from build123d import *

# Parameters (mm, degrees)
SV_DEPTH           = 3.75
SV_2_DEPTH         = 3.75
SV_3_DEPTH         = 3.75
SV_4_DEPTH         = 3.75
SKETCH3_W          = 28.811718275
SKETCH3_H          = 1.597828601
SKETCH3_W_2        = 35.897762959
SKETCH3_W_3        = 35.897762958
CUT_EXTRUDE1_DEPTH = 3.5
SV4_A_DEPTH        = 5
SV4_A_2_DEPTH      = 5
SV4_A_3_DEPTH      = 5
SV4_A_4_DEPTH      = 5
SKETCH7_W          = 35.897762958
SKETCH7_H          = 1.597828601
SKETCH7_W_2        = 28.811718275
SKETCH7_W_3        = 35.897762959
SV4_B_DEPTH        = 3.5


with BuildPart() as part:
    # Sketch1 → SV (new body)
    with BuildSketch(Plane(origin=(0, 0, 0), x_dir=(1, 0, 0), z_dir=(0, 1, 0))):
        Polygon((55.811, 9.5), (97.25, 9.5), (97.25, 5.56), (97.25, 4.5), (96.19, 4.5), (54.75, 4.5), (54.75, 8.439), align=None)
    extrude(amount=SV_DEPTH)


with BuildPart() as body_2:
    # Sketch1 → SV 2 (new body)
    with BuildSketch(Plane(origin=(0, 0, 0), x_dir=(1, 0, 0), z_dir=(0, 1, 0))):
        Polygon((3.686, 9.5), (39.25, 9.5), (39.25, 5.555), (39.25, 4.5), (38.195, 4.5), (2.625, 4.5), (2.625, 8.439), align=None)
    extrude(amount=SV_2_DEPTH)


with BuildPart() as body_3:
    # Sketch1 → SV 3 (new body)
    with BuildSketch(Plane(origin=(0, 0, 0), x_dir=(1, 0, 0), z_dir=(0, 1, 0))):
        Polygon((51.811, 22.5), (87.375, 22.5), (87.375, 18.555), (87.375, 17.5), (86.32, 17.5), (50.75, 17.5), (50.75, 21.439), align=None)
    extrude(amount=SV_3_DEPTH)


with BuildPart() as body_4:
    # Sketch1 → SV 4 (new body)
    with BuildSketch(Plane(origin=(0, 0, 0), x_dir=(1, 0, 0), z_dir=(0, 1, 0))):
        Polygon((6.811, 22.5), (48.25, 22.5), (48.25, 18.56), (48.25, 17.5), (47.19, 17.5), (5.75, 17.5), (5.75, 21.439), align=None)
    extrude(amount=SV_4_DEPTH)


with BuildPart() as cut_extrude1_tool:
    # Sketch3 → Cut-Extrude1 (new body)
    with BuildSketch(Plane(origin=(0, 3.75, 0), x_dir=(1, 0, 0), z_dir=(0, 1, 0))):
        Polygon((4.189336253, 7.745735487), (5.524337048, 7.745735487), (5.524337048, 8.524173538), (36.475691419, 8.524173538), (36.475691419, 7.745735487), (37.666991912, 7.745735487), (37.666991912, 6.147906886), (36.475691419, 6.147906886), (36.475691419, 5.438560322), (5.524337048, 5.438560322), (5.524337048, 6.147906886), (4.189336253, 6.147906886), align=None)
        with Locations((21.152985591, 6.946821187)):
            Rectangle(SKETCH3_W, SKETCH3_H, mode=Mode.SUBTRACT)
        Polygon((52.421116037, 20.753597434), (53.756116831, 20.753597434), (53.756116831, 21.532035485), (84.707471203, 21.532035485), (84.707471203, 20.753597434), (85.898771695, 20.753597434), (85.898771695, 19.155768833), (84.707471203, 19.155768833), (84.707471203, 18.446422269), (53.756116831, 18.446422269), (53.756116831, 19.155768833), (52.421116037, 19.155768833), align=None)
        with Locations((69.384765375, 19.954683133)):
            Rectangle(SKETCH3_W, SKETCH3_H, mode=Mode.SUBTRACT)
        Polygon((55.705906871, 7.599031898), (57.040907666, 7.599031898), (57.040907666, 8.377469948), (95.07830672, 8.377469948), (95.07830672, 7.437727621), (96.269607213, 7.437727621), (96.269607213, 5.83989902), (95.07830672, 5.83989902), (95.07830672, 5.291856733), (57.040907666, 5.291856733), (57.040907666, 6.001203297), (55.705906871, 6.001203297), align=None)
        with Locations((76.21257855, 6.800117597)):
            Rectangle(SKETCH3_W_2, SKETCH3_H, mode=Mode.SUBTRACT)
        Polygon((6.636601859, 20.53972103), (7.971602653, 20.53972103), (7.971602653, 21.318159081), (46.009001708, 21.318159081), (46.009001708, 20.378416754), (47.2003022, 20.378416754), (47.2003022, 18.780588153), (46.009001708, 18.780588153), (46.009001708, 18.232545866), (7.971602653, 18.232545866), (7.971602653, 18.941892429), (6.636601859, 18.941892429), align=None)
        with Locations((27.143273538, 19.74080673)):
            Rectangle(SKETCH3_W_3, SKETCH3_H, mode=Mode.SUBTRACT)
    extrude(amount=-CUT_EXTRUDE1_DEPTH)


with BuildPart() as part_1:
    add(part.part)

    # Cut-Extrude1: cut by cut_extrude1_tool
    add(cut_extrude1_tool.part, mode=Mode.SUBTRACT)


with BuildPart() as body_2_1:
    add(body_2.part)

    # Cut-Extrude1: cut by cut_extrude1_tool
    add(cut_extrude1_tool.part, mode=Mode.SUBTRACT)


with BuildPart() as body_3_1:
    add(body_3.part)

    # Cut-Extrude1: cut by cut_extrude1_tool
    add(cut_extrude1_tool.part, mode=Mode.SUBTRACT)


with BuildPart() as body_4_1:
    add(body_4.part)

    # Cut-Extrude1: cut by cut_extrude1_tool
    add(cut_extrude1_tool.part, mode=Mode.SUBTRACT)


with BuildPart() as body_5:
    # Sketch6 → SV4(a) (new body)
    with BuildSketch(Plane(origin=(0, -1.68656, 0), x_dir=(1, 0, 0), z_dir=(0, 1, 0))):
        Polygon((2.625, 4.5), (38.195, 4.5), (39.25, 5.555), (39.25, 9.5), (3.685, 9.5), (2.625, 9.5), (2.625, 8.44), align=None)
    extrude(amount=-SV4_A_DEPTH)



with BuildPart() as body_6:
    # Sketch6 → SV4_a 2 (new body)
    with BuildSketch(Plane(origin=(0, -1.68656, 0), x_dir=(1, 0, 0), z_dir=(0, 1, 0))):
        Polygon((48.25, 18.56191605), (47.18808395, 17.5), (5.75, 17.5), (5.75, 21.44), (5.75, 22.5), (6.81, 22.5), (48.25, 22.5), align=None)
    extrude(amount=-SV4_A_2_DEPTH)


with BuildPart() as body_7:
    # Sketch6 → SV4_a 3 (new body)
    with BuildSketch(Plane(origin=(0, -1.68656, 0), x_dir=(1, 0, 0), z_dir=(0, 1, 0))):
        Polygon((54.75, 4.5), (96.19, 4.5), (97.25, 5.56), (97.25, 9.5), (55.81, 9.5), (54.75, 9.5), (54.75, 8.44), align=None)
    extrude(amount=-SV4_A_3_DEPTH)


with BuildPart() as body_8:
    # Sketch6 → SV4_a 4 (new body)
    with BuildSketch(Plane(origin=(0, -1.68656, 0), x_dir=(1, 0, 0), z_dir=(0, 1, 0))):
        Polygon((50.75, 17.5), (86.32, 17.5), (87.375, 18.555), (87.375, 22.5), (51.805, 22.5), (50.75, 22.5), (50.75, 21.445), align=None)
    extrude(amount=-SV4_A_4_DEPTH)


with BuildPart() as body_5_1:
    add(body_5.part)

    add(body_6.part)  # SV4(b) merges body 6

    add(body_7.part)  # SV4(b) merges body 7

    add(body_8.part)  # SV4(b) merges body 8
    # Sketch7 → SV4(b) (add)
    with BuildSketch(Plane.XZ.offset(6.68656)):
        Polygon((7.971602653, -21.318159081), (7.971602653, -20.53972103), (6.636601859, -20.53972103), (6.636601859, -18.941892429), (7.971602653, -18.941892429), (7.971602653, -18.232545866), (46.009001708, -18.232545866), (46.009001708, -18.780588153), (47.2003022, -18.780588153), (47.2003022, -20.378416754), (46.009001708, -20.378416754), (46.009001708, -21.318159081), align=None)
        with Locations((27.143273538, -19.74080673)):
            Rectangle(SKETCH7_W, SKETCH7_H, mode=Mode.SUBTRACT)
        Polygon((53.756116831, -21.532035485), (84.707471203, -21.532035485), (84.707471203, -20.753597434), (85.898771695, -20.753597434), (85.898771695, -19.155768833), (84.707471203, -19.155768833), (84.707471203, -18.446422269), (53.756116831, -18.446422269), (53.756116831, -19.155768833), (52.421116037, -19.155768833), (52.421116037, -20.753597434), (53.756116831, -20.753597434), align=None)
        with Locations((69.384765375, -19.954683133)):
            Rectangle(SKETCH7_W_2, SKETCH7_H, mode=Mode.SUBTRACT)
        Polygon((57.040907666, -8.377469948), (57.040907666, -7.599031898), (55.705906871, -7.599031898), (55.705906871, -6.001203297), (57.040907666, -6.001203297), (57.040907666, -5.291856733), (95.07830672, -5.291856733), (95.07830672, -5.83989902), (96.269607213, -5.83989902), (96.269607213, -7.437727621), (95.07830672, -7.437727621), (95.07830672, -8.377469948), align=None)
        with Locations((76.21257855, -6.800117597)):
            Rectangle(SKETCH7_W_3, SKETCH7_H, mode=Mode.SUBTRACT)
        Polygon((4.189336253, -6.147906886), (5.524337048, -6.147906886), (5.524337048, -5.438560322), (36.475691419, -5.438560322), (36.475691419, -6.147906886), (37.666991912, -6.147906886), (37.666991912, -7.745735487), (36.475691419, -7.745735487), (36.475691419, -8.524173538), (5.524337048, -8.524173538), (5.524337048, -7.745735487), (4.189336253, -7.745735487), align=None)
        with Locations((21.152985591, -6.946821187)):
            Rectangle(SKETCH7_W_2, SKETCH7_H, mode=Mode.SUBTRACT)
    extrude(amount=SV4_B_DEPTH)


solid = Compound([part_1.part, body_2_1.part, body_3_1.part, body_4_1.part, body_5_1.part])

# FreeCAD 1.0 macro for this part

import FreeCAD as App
import Part
import Sketcher

V = App.Vector
Q = App.Units.Quantity

doc = App.newDocument("Part")
body = doc.addObject("PartDesign::Body", "Body")

# Sketch on XZ plane
sketch1 = body.newObject("Sketcher::SketchObject", "Sketch")
sketch1.AttachmentSupport = (doc.getObject("XZ_Plane"), [""])
sketch1.MapMode = "FlatFace"
sketch1.addGeometry([
    Part.LineSegment(V(97.2, -9.5, 0), V(55.8, -9.5, 0)),  # 0
    Part.LineSegment(V(55.8, -9.5, 0), V(54.8, -8.4, 0)),  # 1
    Part.LineSegment(V(54.8, -8.4, 0), V(54.8, -4.5, 0)),  # 2
    Part.LineSegment(V(54.8, -4.5, 0), V(97.2, -4.5, 0)),  # 3
    Part.LineSegment(V(97.2, -4.5, 0), V(97.2, -9.5, 0)),  # 4
], False)
sketch1.addConstraint([
    Sketcher.Constraint("Coincident", 0, 2, 1, 1),
    Sketcher.Constraint("Coincident", 1, 2, 2, 1),
    Sketcher.Constraint("Coincident", 2, 2, 3, 1),
    Sketcher.Constraint("Coincident", 3, 2, 4, 1),
    Sketcher.Constraint("Coincident", 4, 2, 0, 1),
    Sketcher.Constraint("Horizontal", 0),
    Sketcher.Constraint("Vertical", 2),
    Sketcher.Constraint("Horizontal", 3),
    Sketcher.Constraint("Vertical", 4),
    Sketcher.Constraint("DistanceY", 4, 2, 4, 1, Q("5 mm")),
    Sketcher.Constraint("Angle", 1, Q("135 deg")),
    Sketcher.Constraint("DistanceX", 3, 1, 3, 2, Q("42.5 mm")),
    Sketcher.Constraint("DistanceY", 0, 2, -1, 1, Q("9.5 mm")),
    Sketcher.Constraint("DistanceX", 0, 2, 0, 1, Q("41.439 mm")),
    Sketcher.Constraint("DistanceX", -1, 1, 1, 2, Q("54.75 mm")),
])
pad1 = body.newObject("PartDesign::Pad", "Pad")
pad1.Profile = sketch1
pad1.Length = 3.75
pad1.Reversed = True
body2 = doc.addObject("PartDesign::Body", "Body001")

# Sketch on XZ plane
sketch2 = body2.newObject("Sketcher::SketchObject", "Sketch001")
sketch2.AttachmentSupport = (doc.getObject("XZ_Plane001"), [""])
sketch2.MapMode = "FlatFace"
sketch2.addGeometry([
    Part.LineSegment(V(39.2, -9.5, 0), V(3.7, -9.5, 0)),  # 0
    Part.LineSegment(V(3.7, -9.5, 0), V(2.6, -8.4, 0)),  # 1
    Part.LineSegment(V(2.6, -8.4, 0), V(2.6, -4.5, 0)),  # 2
    Part.LineSegment(V(2.6, -4.5, 0), V(39.2, -4.5, 0)),  # 3
    Part.LineSegment(V(39.2, -4.5, 0), V(39.2, -9.5, 0)),  # 4
], False)
sketch2.addConstraint([
    Sketcher.Constraint("Coincident", 0, 2, 1, 1),
    Sketcher.Constraint("Coincident", 1, 2, 2, 1),
    Sketcher.Constraint("Coincident", 2, 2, 3, 1),
    Sketcher.Constraint("Coincident", 3, 2, 4, 1),
    Sketcher.Constraint("Coincident", 4, 2, 0, 1),
    Sketcher.Constraint("Horizontal", 0),
    Sketcher.Constraint("Vertical", 2),
    Sketcher.Constraint("Horizontal", 3),
    Sketcher.Constraint("Vertical", 4),
    Sketcher.Constraint("DistanceY", 4, 2, 4, 1, Q("5 mm")),
    Sketcher.Constraint("Angle", 1, Q("135 deg")),
    Sketcher.Constraint("DistanceY", 0, 2, -1, 1, Q("9.5 mm")),
    Sketcher.Constraint("DistanceX", 0, 2, 0, 1, Q("35.564 mm")),
    Sketcher.Constraint("DistanceX", 3, 1, 3, 2, Q("36.625 mm")),
    Sketcher.Constraint("DistanceX", -1, 1, 3, 2, Q("39.25 mm")),
])
pad2 = body2.newObject("PartDesign::Pad", "Pad001")
pad2.Profile = sketch2
pad2.Length = 3.75
pad2.Reversed = True
body3 = doc.addObject("PartDesign::Body", "Body002")

# Sketch on XZ plane
sketch3 = body3.newObject("Sketcher::SketchObject", "Sketch002")
sketch3.AttachmentSupport = (doc.getObject("XZ_Plane002"), [""])
sketch3.MapMode = "FlatFace"
sketch3.addGeometry([
    Part.LineSegment(V(87.4, -22.5, 0), V(51.8, -22.5, 0)),  # 0
    Part.LineSegment(V(51.8, -22.5, 0), V(50.8, -21.4, 0)),  # 1
    Part.LineSegment(V(50.8, -21.4, 0), V(50.8, -17.5, 0)),  # 2
    Part.LineSegment(V(50.8, -17.5, 0), V(87.4, -17.5, 0)),  # 3
    Part.LineSegment(V(87.4, -17.5, 0), V(87.4, -22.5, 0)),  # 4
], False)
sketch3.addConstraint([
    Sketcher.Constraint("Coincident", 0, 2, 1, 1),
    Sketcher.Constraint("Coincident", 1, 2, 2, 1),
    Sketcher.Constraint("Coincident", 2, 2, 3, 1),
    Sketcher.Constraint("Coincident", 3, 2, 4, 1),
    Sketcher.Constraint("Coincident", 4, 2, 0, 1),
    Sketcher.Constraint("Horizontal", 0),
    Sketcher.Constraint("Vertical", 2),
    Sketcher.Constraint("Horizontal", 3),
    Sketcher.Constraint("Vertical", 4),
    Sketcher.Constraint("DistanceY", 4, 2, 4, 1, Q("5 mm")),
    Sketcher.Constraint("Angle", 1, Q("135 deg")),
    Sketcher.Constraint("DistanceY", 0, 2, -1, 1, Q("22.5 mm")),
    Sketcher.Constraint("DistanceX", 0, 2, 0, 1, Q("35.564 mm")),
    Sketcher.Constraint("DistanceX", 3, 1, 3, 2, Q("36.625 mm")),
    Sketcher.Constraint("DistanceX", -1, 1, 1, 2, Q("50.75 mm")),
])
pad3 = body3.newObject("PartDesign::Pad", "Pad002")
pad3.Profile = sketch3
pad3.Length = 3.75
pad3.Reversed = True
body4 = doc.addObject("PartDesign::Body", "Body003")

# Sketch on XZ plane
sketch4 = body4.newObject("Sketcher::SketchObject", "Sketch003")
sketch4.AttachmentSupport = (doc.getObject("XZ_Plane003"), [""])
sketch4.MapMode = "FlatFace"
sketch4.addGeometry([
    Part.LineSegment(V(48.2, -22.5, 0), V(6.8, -22.5, 0)),  # 0
    Part.LineSegment(V(6.8, -22.5, 0), V(5.8, -21.4, 0)),  # 1
    Part.LineSegment(V(5.8, -21.4, 0), V(5.8, -17.5, 0)),  # 2
    Part.LineSegment(V(5.8, -17.5, 0), V(48.2, -17.5, 0)),  # 3
    Part.LineSegment(V(48.2, -17.5, 0), V(48.2, -22.5, 0)),  # 4
], False)
sketch4.addConstraint([
    Sketcher.Constraint("Coincident", 0, 2, 1, 1),
    Sketcher.Constraint("Coincident", 1, 2, 2, 1),
    Sketcher.Constraint("Coincident", 2, 2, 3, 1),
    Sketcher.Constraint("Coincident", 3, 2, 4, 1),
    Sketcher.Constraint("Coincident", 4, 2, 0, 1),
    Sketcher.Constraint("Horizontal", 0),
    Sketcher.Constraint("Vertical", 2),
    Sketcher.Constraint("Horizontal", 3),
    Sketcher.Constraint("Vertical", 4),
    Sketcher.Constraint("DistanceY", 4, 2, 4, 1, Q("5 mm")),
    Sketcher.Constraint("Angle", 1, Q("135 deg")),
    Sketcher.Constraint("DistanceX", 3, 1, 3, 2, Q("42.5 mm")),
    Sketcher.Constraint("DistanceY", 0, 2, -1, 1, Q("22.5 mm")),
    Sketcher.Constraint("DistanceX", 0, 2, 0, 1, Q("41.439 mm")),
    Sketcher.Constraint("DistanceX", -1, 1, 1, 2, Q("5.75 mm")),
])
pad4 = body4.newObject("PartDesign::Pad", "Pad003")
pad4.Profile = sketch4
pad4.Length = 3.75
pad4.Reversed = True
body5 = doc.addObject("PartDesign::Body", "Body004")
body5.AllowCompound = True

# Sketch on XZ plane
sketch5 = body5.newObject("Sketcher::SketchObject", "Sketch004")
sketch5.AttachmentSupport = (doc.getObject("XZ_Plane004"), [""])
sketch5.MapMode = "FlatFace"
sketch5.AttachmentOffset = App.Placement(V(0, 0, -3.75), App.Rotation())
sketch5.addGeometry([
    Part.LineSegment(V(5.5, -7.7, 0), V(4.2, -7.7, 0)),  # 0
    Part.LineSegment(V(4.2, -7.7, 0), V(4.2, -6.1, 0)),  # 1
    Part.LineSegment(V(4.2, -6.1, 0), V(5.5, -6.1, 0)),  # 2
    Part.LineSegment(V(5.5, -6.1, 0), V(5.5, -5.4, 0)),  # 3
    Part.LineSegment(V(5.5, -5.4, 0), V(36.5, -5.4, 0)),  # 4
    Part.LineSegment(V(36.5, -5.4, 0), V(36.5, -6.1, 0)),  # 5
    Part.LineSegment(V(36.5, -6.1, 0), V(37.7, -6.1, 0)),  # 6
    Part.LineSegment(V(37.7, -6.1, 0), V(37.7, -7.7, 0)),  # 7
    Part.LineSegment(V(37.7, -7.7, 0), V(36.5, -7.7, 0)),  # 8
    Part.LineSegment(V(36.5, -7.7, 0), V(36.5, -8.5, 0)),  # 9
    Part.LineSegment(V(36.5, -8.5, 0), V(5.5, -8.5, 0)),  # 10
    Part.LineSegment(V(5.5, -8.5, 0), V(5.5, -7.7, 0)),  # 11
    Part.LineSegment(V(6.7, -6.1, 0), V(6.7, -7.7, 0)),  # 12
    Part.LineSegment(V(6.7, -7.7, 0), V(35.6, -7.7, 0)),  # 13
    Part.LineSegment(V(35.6, -7.7, 0), V(35.6, -6.1, 0)),  # 14
    Part.LineSegment(V(35.6, -6.1, 0), V(6.7, -6.1, 0)),  # 15
    Part.LineSegment(V(53.8, -20.8, 0), V(52.4, -20.8, 0)),  # 16
    Part.LineSegment(V(52.4, -20.8, 0), V(52.4, -19.2, 0)),  # 17
    Part.LineSegment(V(52.4, -19.2, 0), V(53.8, -19.2, 0)),  # 18
    Part.LineSegment(V(53.8, -19.2, 0), V(53.8, -18.4, 0)),  # 19
    Part.LineSegment(V(53.8, -18.4, 0), V(84.7, -18.4, 0)),  # 20
    Part.LineSegment(V(84.7, -18.4, 0), V(84.7, -19.2, 0)),  # 21
    Part.LineSegment(V(84.7, -19.2, 0), V(85.9, -19.2, 0)),  # 22
    Part.LineSegment(V(85.9, -19.2, 0), V(85.9, -20.8, 0)),  # 23
    Part.LineSegment(V(85.9, -20.8, 0), V(84.7, -20.8, 0)),  # 24
    Part.LineSegment(V(84.7, -20.8, 0), V(84.7, -21.5, 0)),  # 25
    Part.LineSegment(V(84.7, -21.5, 0), V(53.8, -21.5, 0)),  # 26
    Part.LineSegment(V(53.8, -21.5, 0), V(53.8, -20.8, 0)),  # 27
    Part.LineSegment(V(55, -19.2, 0), V(55, -20.8, 0)),  # 28
    Part.LineSegment(V(55, -20.8, 0), V(83.8, -20.8, 0)),  # 29
    Part.LineSegment(V(83.8, -20.8, 0), V(83.8, -19.2, 0)),  # 30
    Part.LineSegment(V(83.8, -19.2, 0), V(55, -19.2, 0)),  # 31
    Part.LineSegment(V(57, -7.6, 0), V(55.7, -7.6, 0)),  # 32
    Part.LineSegment(V(55.7, -7.6, 0), V(55.7, -6, 0)),  # 33
    Part.LineSegment(V(55.7, -6, 0), V(57, -6, 0)),  # 34
    Part.LineSegment(V(57, -6, 0), V(57, -5.3, 0)),  # 35
    Part.LineSegment(V(57, -5.3, 0), V(95.1, -5.3, 0)),  # 36
    Part.LineSegment(V(95.1, -5.3, 0), V(95.1, -5.8, 0)),  # 37
    Part.LineSegment(V(95.1, -5.8, 0), V(96.3, -5.8, 0)),  # 38
    Part.LineSegment(V(96.3, -5.8, 0), V(96.3, -7.4, 0)),  # 39
    Part.LineSegment(V(96.3, -7.4, 0), V(95.1, -7.4, 0)),  # 40
    Part.LineSegment(V(95.1, -7.4, 0), V(95.1, -8.4, 0)),  # 41
    Part.LineSegment(V(95.1, -8.4, 0), V(57, -8.4, 0)),  # 42
    Part.LineSegment(V(57, -8.4, 0), V(57, -7.6, 0)),  # 43
    Part.LineSegment(V(58.3, -6, 0), V(58.3, -7.6, 0)),  # 44
    Part.LineSegment(V(58.3, -7.6, 0), V(94.2, -7.6, 0)),  # 45
    Part.LineSegment(V(94.2, -7.6, 0), V(94.2, -6, 0)),  # 46
    Part.LineSegment(V(94.2, -6, 0), V(58.3, -6, 0)),  # 47
    Part.LineSegment(V(8, -20.5, 0), V(6.6, -20.5, 0)),  # 48
    Part.LineSegment(V(6.6, -20.5, 0), V(6.6, -18.9, 0)),  # 49
    Part.LineSegment(V(6.6, -18.9, 0), V(8, -18.9, 0)),  # 50
    Part.LineSegment(V(8, -18.9, 0), V(8, -18.2, 0)),  # 51
    Part.LineSegment(V(8, -18.2, 0), V(46, -18.2, 0)),  # 52
    Part.LineSegment(V(46, -18.2, 0), V(46, -18.8, 0)),  # 53
    Part.LineSegment(V(46, -18.8, 0), V(47.2, -18.8, 0)),  # 54
    Part.LineSegment(V(47.2, -18.8, 0), V(47.2, -20.4, 0)),  # 55
    Part.LineSegment(V(47.2, -20.4, 0), V(46, -20.4, 0)),  # 56
    Part.LineSegment(V(46, -20.4, 0), V(46, -21.3, 0)),  # 57
    Part.LineSegment(V(46, -21.3, 0), V(8, -21.3, 0)),  # 58
    Part.LineSegment(V(8, -21.3, 0), V(8, -20.5, 0)),  # 59
    Part.LineSegment(V(9.2, -18.9, 0), V(9.2, -20.5, 0)),  # 60
    Part.LineSegment(V(9.2, -20.5, 0), V(45.1, -20.5, 0)),  # 61
    Part.LineSegment(V(45.1, -20.5, 0), V(45.1, -18.9, 0)),  # 62
    Part.LineSegment(V(45.1, -18.9, 0), V(9.2, -18.9, 0)),  # 63
], False)
sketch5.addConstraint([
    Sketcher.Constraint("Coincident", 0, 2, 1, 1),
    Sketcher.Constraint("Coincident", 1, 2, 2, 1),
    Sketcher.Constraint("Coincident", 2, 2, 3, 1),
    Sketcher.Constraint("Coincident", 3, 2, 4, 1),
    Sketcher.Constraint("Coincident", 4, 2, 5, 1),
    Sketcher.Constraint("Coincident", 5, 2, 6, 1),
    Sketcher.Constraint("Coincident", 6, 2, 7, 1),
    Sketcher.Constraint("Coincident", 7, 2, 8, 1),
    Sketcher.Constraint("Coincident", 8, 2, 9, 1),
    Sketcher.Constraint("Coincident", 9, 2, 10, 1),
    Sketcher.Constraint("Coincident", 10, 2, 11, 1),
    Sketcher.Constraint("Coincident", 11, 2, 0, 1),
    Sketcher.Constraint("Coincident", 12, 2, 13, 1),
    Sketcher.Constraint("Coincident", 13, 2, 14, 1),
    Sketcher.Constraint("Coincident", 14, 2, 15, 1),
    Sketcher.Constraint("Coincident", 15, 2, 12, 1),
    Sketcher.Constraint("Coincident", 16, 2, 17, 1),
    Sketcher.Constraint("Coincident", 17, 2, 18, 1),
    Sketcher.Constraint("Coincident", 18, 2, 19, 1),
    Sketcher.Constraint("Coincident", 19, 2, 20, 1),
    Sketcher.Constraint("Coincident", 20, 2, 21, 1),
    Sketcher.Constraint("Coincident", 21, 2, 22, 1),
    Sketcher.Constraint("Coincident", 22, 2, 23, 1),
    Sketcher.Constraint("Coincident", 23, 2, 24, 1),
    Sketcher.Constraint("Coincident", 24, 2, 25, 1),
    Sketcher.Constraint("Coincident", 25, 2, 26, 1),
    Sketcher.Constraint("Coincident", 26, 2, 27, 1),
    Sketcher.Constraint("Coincident", 27, 2, 16, 1),
    Sketcher.Constraint("Coincident", 28, 2, 29, 1),
    Sketcher.Constraint("Coincident", 29, 2, 30, 1),
    Sketcher.Constraint("Coincident", 30, 2, 31, 1),
    Sketcher.Constraint("Coincident", 31, 2, 28, 1),
    Sketcher.Constraint("Coincident", 32, 2, 33, 1),
    Sketcher.Constraint("Coincident", 33, 2, 34, 1),
    Sketcher.Constraint("Coincident", 34, 2, 35, 1),
    Sketcher.Constraint("Coincident", 35, 2, 36, 1),
    Sketcher.Constraint("Coincident", 36, 2, 37, 1),
    Sketcher.Constraint("Coincident", 37, 2, 38, 1),
    Sketcher.Constraint("Coincident", 38, 2, 39, 1),
    Sketcher.Constraint("Coincident", 39, 2, 40, 1),
    Sketcher.Constraint("Coincident", 40, 2, 41, 1),
    Sketcher.Constraint("Coincident", 41, 2, 42, 1),
    Sketcher.Constraint("Coincident", 42, 2, 43, 1),
    Sketcher.Constraint("Coincident", 43, 2, 32, 1),
    Sketcher.Constraint("Coincident", 44, 2, 45, 1),
    Sketcher.Constraint("Coincident", 45, 2, 46, 1),
    Sketcher.Constraint("Coincident", 46, 2, 47, 1),
    Sketcher.Constraint("Coincident", 47, 2, 44, 1),
    Sketcher.Constraint("Coincident", 48, 2, 49, 1),
    Sketcher.Constraint("Coincident", 49, 2, 50, 1),
    Sketcher.Constraint("Coincident", 50, 2, 51, 1),
    Sketcher.Constraint("Coincident", 51, 2, 52, 1),
    Sketcher.Constraint("Coincident", 52, 2, 53, 1),
    Sketcher.Constraint("Coincident", 53, 2, 54, 1),
    Sketcher.Constraint("Coincident", 54, 2, 55, 1),
    Sketcher.Constraint("Coincident", 55, 2, 56, 1),
    Sketcher.Constraint("Coincident", 56, 2, 57, 1),
    Sketcher.Constraint("Coincident", 57, 2, 58, 1),
    Sketcher.Constraint("Coincident", 58, 2, 59, 1),
    Sketcher.Constraint("Coincident", 59, 2, 48, 1),
    Sketcher.Constraint("Coincident", 60, 2, 61, 1),
    Sketcher.Constraint("Coincident", 61, 2, 62, 1),
    Sketcher.Constraint("Coincident", 62, 2, 63, 1),
    Sketcher.Constraint("Coincident", 63, 2, 60, 1),
    Sketcher.Constraint("Horizontal", 0),
    Sketcher.Constraint("Vertical", 1),
    Sketcher.Constraint("Horizontal", 2),
    Sketcher.Constraint("Vertical", 3),
    Sketcher.Constraint("Horizontal", 4),
    Sketcher.Constraint("Vertical", 5),
    Sketcher.Constraint("Horizontal", 6),
    Sketcher.Constraint("Vertical", 7),
    Sketcher.Constraint("Horizontal", 8),
    Sketcher.Constraint("Vertical", 9),
    Sketcher.Constraint("Horizontal", 10),
    Sketcher.Constraint("Vertical", 11),
    Sketcher.Constraint("Vertical", 12),
    Sketcher.Constraint("Horizontal", 13),
    Sketcher.Constraint("Vertical", 14),
    Sketcher.Constraint("Horizontal", 15),
    Sketcher.Constraint("Horizontal", 16),
    Sketcher.Constraint("Vertical", 17),
    Sketcher.Constraint("Horizontal", 18),
    Sketcher.Constraint("Vertical", 19),
    Sketcher.Constraint("Horizontal", 20),
    Sketcher.Constraint("Vertical", 21),
    Sketcher.Constraint("Horizontal", 22),
    Sketcher.Constraint("Vertical", 23),
    Sketcher.Constraint("Horizontal", 24),
    Sketcher.Constraint("Vertical", 25),
    Sketcher.Constraint("Horizontal", 26),
    Sketcher.Constraint("Vertical", 27),
    Sketcher.Constraint("Vertical", 28),
    Sketcher.Constraint("Horizontal", 29),
    Sketcher.Constraint("Vertical", 30),
    Sketcher.Constraint("Horizontal", 31),
    Sketcher.Constraint("Horizontal", 32),
    Sketcher.Constraint("Vertical", 33),
    Sketcher.Constraint("Horizontal", 34),
    Sketcher.Constraint("Vertical", 35),
    Sketcher.Constraint("Horizontal", 36),
    Sketcher.Constraint("Vertical", 37),
    Sketcher.Constraint("Horizontal", 38),
    Sketcher.Constraint("Vertical", 39),
    Sketcher.Constraint("Horizontal", 40),
    Sketcher.Constraint("Vertical", 41),
    Sketcher.Constraint("Horizontal", 42),
    Sketcher.Constraint("Vertical", 43),
    Sketcher.Constraint("Vertical", 44),
    Sketcher.Constraint("Horizontal", 45),
    Sketcher.Constraint("Vertical", 46),
    Sketcher.Constraint("Horizontal", 47),
    Sketcher.Constraint("Horizontal", 48),
    Sketcher.Constraint("Vertical", 49),
    Sketcher.Constraint("Horizontal", 50),
    Sketcher.Constraint("Vertical", 51),
    Sketcher.Constraint("Horizontal", 52),
    Sketcher.Constraint("Vertical", 53),
    Sketcher.Constraint("Horizontal", 54),
    Sketcher.Constraint("Vertical", 55),
    Sketcher.Constraint("Horizontal", 56),
    Sketcher.Constraint("Vertical", 57),
    Sketcher.Constraint("Horizontal", 58),
    Sketcher.Constraint("Vertical", 59),
    Sketcher.Constraint("Vertical", 60),
    Sketcher.Constraint("Horizontal", 61),
    Sketcher.Constraint("Vertical", 62),
    Sketcher.Constraint("Horizontal", 63),
    Sketcher.Constraint("Horizontal", 2, 2, 5, 2),
    Sketcher.Constraint("Horizontal", 0, 2, 7, 2),
    Sketcher.Constraint("Horizontal", 11, 2, 12, 2),
    Sketcher.Constraint("Horizontal", 6, 2, 14, 2),
    Sketcher.Constraint("Horizontal", 18, 2, 21, 2),
    Sketcher.Constraint("Horizontal", 16, 2, 23, 2),
    Sketcher.Constraint("Horizontal", 27, 2, 28, 2),
    Sketcher.Constraint("Horizontal", 22, 2, 30, 2),
    Sketcher.Constraint("Horizontal", 43, 2, 44, 2),
    Sketcher.Constraint("Horizontal", 34, 2, 46, 2),
    Sketcher.Constraint("Horizontal", 59, 2, 60, 2),
    Sketcher.Constraint("Horizontal", 50, 2, 62, 2),
    Sketcher.Constraint("Vertical", 5, 2, 8, 2),
    Sketcher.Constraint("Vertical", 3, 2, 10, 2),
    Sketcher.Constraint("Vertical", 21, 2, 24, 2),
    Sketcher.Constraint("Vertical", 19, 2, 26, 2),
    Sketcher.Constraint("Vertical", 37, 2, 40, 2),
    Sketcher.Constraint("Vertical", 35, 2, 42, 2),
    Sketcher.Constraint("Vertical", 53, 2, 56, 2),
    Sketcher.Constraint("Vertical", 51, 2, 58, 2),
    Sketcher.Constraint("Equal", 2, 16),
    Sketcher.Constraint("Equal", 10, 20),
    Sketcher.Constraint("Equal", 8, 22),
    Sketcher.Constraint("Equal", 15, 29),
    Sketcher.Constraint("Equal", 18, 32),
    Sketcher.Constraint("Equal", 24, 38),
    Sketcher.Constraint("Equal", 34, 48),
    Sketcher.Constraint("Equal", 42, 52),
    Sketcher.Constraint("Equal", 40, 54),
    Sketcher.Constraint("Equal", 47, 61),
    Sketcher.Constraint("Equal", 14, 17),
    Sketcher.Constraint("Equal", 5, 19),
    Sketcher.Constraint("Equal", 11, 25),
    Sketcher.Constraint("Equal", 30, 33),
    Sketcher.Constraint("Equal", 21, 35),
    Sketcher.Constraint("Equal", 33, 39),
    Sketcher.Constraint("Equal", 27, 43),
    Sketcher.Constraint("Equal", 46, 49),
    Sketcher.Constraint("Equal", 35, 51),
    Sketcher.Constraint("Equal", 37, 53),
    Sketcher.Constraint("Equal", 49, 55),
    Sketcher.Constraint("Equal", 41, 57),
    Sketcher.Constraint("DistanceX", 0, 2, 0, 1, Q("1.335001 mm")),
    Sketcher.Constraint("DistanceX", 6, 1, 6, 2, Q("1.1913 mm")),
    Sketcher.Constraint("DistanceX", 36, 1, 36, 2, Q("38.037399 mm")),
    Sketcher.Constraint("DistanceX", -1, 1, 52, 2, Q("46.009002 mm")),
    Sketcher.Constraint("DistanceX", 13, 1, 13, 2, Q("28.811718 mm")),
    Sketcher.Constraint("DistanceY", 1, 1, 1, 2, Q("1.597829 mm")),
    Sketcher.Constraint("DistanceY", 9, 2, 9, 1, Q("0.778438 mm")),
    Sketcher.Constraint("DistanceY", 37, 2, -1, 1, Q("5.839899 mm")),
    Sketcher.Constraint("DistanceX", 4, 1, 4, 2, Q("30.951354 mm")),
    Sketcher.Constraint("DistanceX", 45, 1, 45, 2, Q("35.897763 mm")),
    Sketcher.Constraint("DistanceY", 3, 1, 3, 2, Q("0.709347 mm")),
    Sketcher.Constraint("DistanceY", 37, 2, 37, 1, Q("0.548042 mm")),
    Sketcher.Constraint("DistanceY", 3, 2, -1, 1, Q("5.43856 mm")),
    Sketcher.Constraint("DistanceX", -1, 1, 4, 2, Q("36.475691 mm")),
    Sketcher.Constraint("DistanceY", 17, 2, -1, 1, Q("19.155769 mm")),
    Sketcher.Constraint("DistanceX", -1, 1, 20, 2, Q("84.707471 mm")),
    Sketcher.Constraint("DistanceX", -1, 1, 45, 2, Q("94.16146 mm")),
    Sketcher.Constraint("DistanceY", 48, 2, -1, 1, Q("20.539721 mm")),
    Sketcher.Constraint("DistanceX", -1, 1, 12, 2, Q("6.747126 mm")),
    Sketcher.Constraint("DistanceX", -1, 1, 28, 2, Q("54.978906 mm")),
    Sketcher.Constraint("DistanceX", -1, 1, 32, 2, Q("55.705907 mm")),
    Sketcher.Constraint("DistanceX", -1, 1, 60, 2, Q("9.194392 mm")),
])
pad5 = body5.newObject("PartDesign::Pad", "Pad004")
pad5.Profile = sketch5
pad5.Length = 3.5
doc.recompute()

body6 = doc.addObject("PartDesign::Body", "Body005")
body6.BaseFeature = body5
boolean = body.newObject("PartDesign::Boolean", "Boolean")
boolean.Type = "Cut"
boolean.addObjects([body6])
doc.recompute()

body7 = doc.addObject("PartDesign::Body", "Body006")
body7.BaseFeature = body5
boolean2 = body2.newObject("PartDesign::Boolean", "Boolean001")
boolean2.Type = "Cut"
boolean2.addObjects([body7])
doc.recompute()

body8 = doc.addObject("PartDesign::Body", "Body007")
body8.BaseFeature = body5
boolean3 = body3.newObject("PartDesign::Boolean", "Boolean002")
boolean3.Type = "Cut"
boolean3.addObjects([body8])
doc.recompute()

boolean4 = body4.newObject("PartDesign::Boolean", "Boolean003")
boolean4.Type = "Cut"
boolean4.addObjects([body5])
body9 = doc.addObject("PartDesign::Body", "Body008")

# Sketch on XZ plane
sketch6 = body9.newObject("Sketcher::SketchObject", "Sketch005")
sketch6.AttachmentSupport = (doc.getObject("XZ_Plane008"), [""])
sketch6.MapMode = "FlatFace"
sketch6.AttachmentOffset = App.Placement(V(0, 0, 1.68656), App.Rotation())
sketch6.addGeometry([
    Part.LineSegment(V(2.6, -4.5, 0), V(38.2, -4.5, 0)),  # 0
    Part.LineSegment(V(38.2, -4.5, 0), V(39.2, -5.6, 0)),  # 1
    Part.LineSegment(V(39.2, -5.6, 0), V(39.2, -9.5, 0)),  # 2
    Part.LineSegment(V(39.2, -9.5, 0), V(2.6, -9.5, 0)),  # 3
    Part.LineSegment(V(2.6, -9.5, 0), V(2.6, -4.5, 0)),  # 4
], False)
sketch6.addConstraint([
    Sketcher.Constraint("Coincident", 0, 2, 1, 1),
    Sketcher.Constraint("Coincident", 1, 2, 2, 1),
    Sketcher.Constraint("Coincident", 2, 2, 3, 1),
    Sketcher.Constraint("Coincident", 3, 2, 4, 1),
    Sketcher.Constraint("Coincident", 4, 2, 0, 1),
    Sketcher.Constraint("Horizontal", 0),
    Sketcher.Constraint("Vertical", 2),
    Sketcher.Constraint("Horizontal", 3),
    Sketcher.Constraint("Vertical", 4),
    Sketcher.Constraint("DistanceY", 4, 1, 4, 2, Q("5 mm")),
    Sketcher.Constraint("Angle", 1, Q("-45 deg")),
    Sketcher.Constraint("DistanceX", 0, 1, 0, 2, Q("35.57 mm")),
    Sketcher.Constraint("DistanceY", 0, 2, -1, 1, Q("4.5 mm")),
    Sketcher.Constraint("DistanceX", 3, 2, 3, 1, Q("36.625 mm")),
    Sketcher.Constraint("DistanceX", -1, 1, 1, 2, Q("39.25 mm")),
])
pad6 = body9.newObject("PartDesign::Pad", "Pad005")
pad6.Profile = sketch6
pad6.Length = 5
body10 = doc.addObject("PartDesign::Body", "Body009")

# Sketch on XZ plane
sketch7 = body10.newObject("Sketcher::SketchObject", "Sketch006")
sketch7.AttachmentSupport = (doc.getObject("XZ_Plane009"), [""])
sketch7.MapMode = "FlatFace"
sketch7.AttachmentOffset = App.Placement(V(0, 0, 1.68656), App.Rotation())
sketch7.addGeometry([
    Part.LineSegment(V(47.2, -17.5, 0), V(48.2, -18.6, 0)),  # 0
    Part.LineSegment(V(48.2, -18.6, 0), V(48.2, -22.5, 0)),  # 1
    Part.LineSegment(V(48.2, -22.5, 0), V(5.8, -22.5, 0)),  # 2
    Part.LineSegment(V(5.8, -22.5, 0), V(5.8, -17.5, 0)),  # 3
    Part.LineSegment(V(5.8, -17.5, 0), V(47.2, -17.5, 0)),  # 4
], False)
sketch7.addConstraint([
    Sketcher.Constraint("Coincident", 0, 2, 1, 1),
    Sketcher.Constraint("Coincident", 1, 2, 2, 1),
    Sketcher.Constraint("Coincident", 2, 2, 3, 1),
    Sketcher.Constraint("Coincident", 3, 2, 4, 1),
    Sketcher.Constraint("Coincident", 4, 2, 0, 1),
    Sketcher.Constraint("Vertical", 1),
    Sketcher.Constraint("Horizontal", 2),
    Sketcher.Constraint("Vertical", 3),
    Sketcher.Constraint("Horizontal", 4),
    Sketcher.Constraint("DistanceY", 3, 1, 3, 2, Q("5 mm")),
    Sketcher.Constraint("Angle", 0, Q("-45 deg")),
    Sketcher.Constraint("DistanceX", 2, 2, 2, 1, Q("42.5 mm")),
    Sketcher.Constraint("DistanceY", 1, 2, -1, 1, Q("22.5 mm")),
    Sketcher.Constraint("DistanceX", -1, 1, 0, 2, Q("48.25 mm")),
    Sketcher.Constraint("DistanceX", 4, 1, 4, 2, Q("41.438084 mm")),
])
pad7 = body10.newObject("PartDesign::Pad", "Pad006")
pad7.Profile = sketch7
pad7.Length = 5
body11 = doc.addObject("PartDesign::Body", "Body010")

# Sketch on XZ plane
sketch8 = body11.newObject("Sketcher::SketchObject", "Sketch007")
sketch8.AttachmentSupport = (doc.getObject("XZ_Plane010"), [""])
sketch8.MapMode = "FlatFace"
sketch8.AttachmentOffset = App.Placement(V(0, 0, 1.68656), App.Rotation())
sketch8.addGeometry([
    Part.LineSegment(V(54.8, -4.5, 0), V(96.2, -4.5, 0)),  # 0
    Part.LineSegment(V(96.2, -4.5, 0), V(97.2, -5.6, 0)),  # 1
    Part.LineSegment(V(97.2, -5.6, 0), V(97.2, -9.5, 0)),  # 2
    Part.LineSegment(V(97.2, -9.5, 0), V(54.8, -9.5, 0)),  # 3
    Part.LineSegment(V(54.8, -9.5, 0), V(54.8, -4.5, 0)),  # 4
], False)
sketch8.addConstraint([
    Sketcher.Constraint("Coincident", 0, 2, 1, 1),
    Sketcher.Constraint("Coincident", 1, 2, 2, 1),
    Sketcher.Constraint("Coincident", 2, 2, 3, 1),
    Sketcher.Constraint("Coincident", 3, 2, 4, 1),
    Sketcher.Constraint("Coincident", 4, 2, 0, 1),
    Sketcher.Constraint("Horizontal", 0),
    Sketcher.Constraint("Vertical", 2),
    Sketcher.Constraint("Horizontal", 3),
    Sketcher.Constraint("Vertical", 4),
    Sketcher.Constraint("DistanceY", 4, 1, 4, 2, Q("5 mm")),
    Sketcher.Constraint("Angle", 1, Q("-45 deg")),
    Sketcher.Constraint("DistanceX", 3, 2, 3, 1, Q("42.5 mm")),
    Sketcher.Constraint("DistanceX", 0, 1, 0, 2, Q("41.44 mm")),
    Sketcher.Constraint("DistanceY", 0, 2, -1, 1, Q("4.5 mm")),
    Sketcher.Constraint("DistanceX", -1, 1, 0, 2, Q("96.19 mm")),
])
pad8 = body11.newObject("PartDesign::Pad", "Pad007")
pad8.Profile = sketch8
pad8.Length = 5
body12 = doc.addObject("PartDesign::Body", "Body011")

# Sketch on XZ plane
sketch9 = body12.newObject("Sketcher::SketchObject", "Sketch008")
sketch9.AttachmentSupport = (doc.getObject("XZ_Plane011"), [""])
sketch9.MapMode = "FlatFace"
sketch9.AttachmentOffset = App.Placement(V(0, 0, 1.68656), App.Rotation())
sketch9.addGeometry([
    Part.LineSegment(V(50.8, -17.5, 0), V(86.3, -17.5, 0)),  # 0
    Part.LineSegment(V(86.3, -17.5, 0), V(87.4, -18.6, 0)),  # 1
    Part.LineSegment(V(87.4, -18.6, 0), V(87.4, -22.5, 0)),  # 2
    Part.LineSegment(V(87.4, -22.5, 0), V(50.8, -22.5, 0)),  # 3
    Part.LineSegment(V(50.8, -22.5, 0), V(50.8, -17.5, 0)),  # 4
], False)
sketch9.addConstraint([
    Sketcher.Constraint("Coincident", 0, 2, 1, 1),
    Sketcher.Constraint("Coincident", 1, 2, 2, 1),
    Sketcher.Constraint("Coincident", 2, 2, 3, 1),
    Sketcher.Constraint("Coincident", 3, 2, 4, 1),
    Sketcher.Constraint("Coincident", 4, 2, 0, 1),
    Sketcher.Constraint("Horizontal", 0),
    Sketcher.Constraint("Vertical", 2),
    Sketcher.Constraint("Horizontal", 3),
    Sketcher.Constraint("Vertical", 4),
    Sketcher.Constraint("DistanceY", 4, 1, 4, 2, Q("5 mm")),
    Sketcher.Constraint("Angle", 1, Q("-45 deg")),
    Sketcher.Constraint("DistanceX", 0, 1, 0, 2, Q("35.57 mm")),
    Sketcher.Constraint("DistanceY", 0, 2, -1, 1, Q("17.5 mm")),
    Sketcher.Constraint("DistanceX", 3, 2, 3, 1, Q("36.625 mm")),
    Sketcher.Constraint("DistanceX", -1, 1, 0, 2, Q("86.32 mm")),
])
pad9 = body12.newObject("PartDesign::Pad", "Pad008")
pad9.Profile = sketch9
pad9.Length = 5
body9.AllowCompound = True
doc.recompute()

boolean5 = body9.newObject("PartDesign::Boolean", "Boolean004")
boolean5.Type = "Fuse"
boolean5.addObjects([body10])
doc.recompute()

boolean6 = body9.newObject("PartDesign::Boolean", "Boolean005")
boolean6.Type = "Fuse"
boolean6.addObjects([body11])
doc.recompute()

boolean7 = body9.newObject("PartDesign::Boolean", "Boolean006")
boolean7.Type = "Fuse"
boolean7.addObjects([body12])

# Sketch on XZ plane
sketch10 = body9.newObject("Sketcher::SketchObject", "Sketch009")
sketch10.AttachmentSupport = (doc.getObject("XZ_Plane008"), [""])
sketch10.MapMode = "FlatFace"
sketch10.AttachmentOffset = App.Placement(V(0, 0, 6.68656), App.Rotation())
sketch10.addGeometry([
    Part.LineSegment(V(8, -20.5, 0), V(8, -21.3, 0)),  # 0
    Part.LineSegment(V(8, -21.3, 0), V(46, -21.3, 0)),  # 1
    Part.LineSegment(V(46, -21.3, 0), V(46, -20.4, 0)),  # 2
    Part.LineSegment(V(46, -20.4, 0), V(47.2, -20.4, 0)),  # 3
    Part.LineSegment(V(47.2, -20.4, 0), V(47.2, -18.8, 0)),  # 4
    Part.LineSegment(V(47.2, -18.8, 0), V(46, -18.8, 0)),  # 5
    Part.LineSegment(V(46, -18.8, 0), V(46, -18.2, 0)),  # 6
    Part.LineSegment(V(46, -18.2, 0), V(8, -18.2, 0)),  # 7
    Part.LineSegment(V(8, -18.2, 0), V(8, -18.9, 0)),  # 8
    Part.LineSegment(V(8, -18.9, 0), V(6.6, -18.9, 0)),  # 9
    Part.LineSegment(V(6.6, -18.9, 0), V(6.6, -20.5, 0)),  # 10
    Part.LineSegment(V(6.6, -20.5, 0), V(8, -20.5, 0)),  # 11
    Part.LineSegment(V(9.2, -20.5, 0), V(9.2, -18.9, 0)),  # 12
    Part.LineSegment(V(9.2, -18.9, 0), V(45.1, -18.9, 0)),  # 13
    Part.LineSegment(V(45.1, -18.9, 0), V(45.1, -20.5, 0)),  # 14
    Part.LineSegment(V(45.1, -20.5, 0), V(9.2, -20.5, 0)),  # 15
    Part.LineSegment(V(53.8, -21.5, 0), V(84.7, -21.5, 0)),  # 16
    Part.LineSegment(V(84.7, -21.5, 0), V(84.7, -20.8, 0)),  # 17
    Part.LineSegment(V(84.7, -20.8, 0), V(85.9, -20.8, 0)),  # 18
    Part.LineSegment(V(85.9, -20.8, 0), V(85.9, -19.2, 0)),  # 19
    Part.LineSegment(V(85.9, -19.2, 0), V(84.7, -19.2, 0)),  # 20
    Part.LineSegment(V(84.7, -19.2, 0), V(84.7, -18.4, 0)),  # 21
    Part.LineSegment(V(84.7, -18.4, 0), V(53.8, -18.4, 0)),  # 22
    Part.LineSegment(V(53.8, -18.4, 0), V(53.8, -19.2, 0)),  # 23
    Part.LineSegment(V(53.8, -19.2, 0), V(52.4, -19.2, 0)),  # 24
    Part.LineSegment(V(52.4, -19.2, 0), V(52.4, -20.8, 0)),  # 25
    Part.LineSegment(V(52.4, -20.8, 0), V(53.8, -20.8, 0)),  # 26
    Part.LineSegment(V(53.8, -20.8, 0), V(53.8, -21.5, 0)),  # 27
    Part.LineSegment(V(83.8, -20.8, 0), V(55, -20.8, 0)),  # 28
    Part.LineSegment(V(55, -20.8, 0), V(55, -19.2, 0)),  # 29
    Part.LineSegment(V(55, -19.2, 0), V(83.8, -19.2, 0)),  # 30
    Part.LineSegment(V(83.8, -19.2, 0), V(83.8, -20.8, 0)),  # 31
    Part.LineSegment(V(57, -7.6, 0), V(57, -8.4, 0)),  # 32
    Part.LineSegment(V(57, -8.4, 0), V(95.1, -8.4, 0)),  # 33
    Part.LineSegment(V(95.1, -8.4, 0), V(95.1, -7.4, 0)),  # 34
    Part.LineSegment(V(95.1, -7.4, 0), V(96.3, -7.4, 0)),  # 35
    Part.LineSegment(V(96.3, -7.4, 0), V(96.3, -5.8, 0)),  # 36
    Part.LineSegment(V(96.3, -5.8, 0), V(95.1, -5.8, 0)),  # 37
    Part.LineSegment(V(95.1, -5.8, 0), V(95.1, -5.3, 0)),  # 38
    Part.LineSegment(V(95.1, -5.3, 0), V(57, -5.3, 0)),  # 39
    Part.LineSegment(V(57, -5.3, 0), V(57, -6, 0)),  # 40
    Part.LineSegment(V(57, -6, 0), V(55.7, -6, 0)),  # 41
    Part.LineSegment(V(55.7, -6, 0), V(55.7, -7.6, 0)),  # 42
    Part.LineSegment(V(55.7, -7.6, 0), V(57, -7.6, 0)),  # 43
    Part.LineSegment(V(58.3, -7.6, 0), V(58.3, -6, 0)),  # 44
    Part.LineSegment(V(58.3, -6, 0), V(94.2, -6, 0)),  # 45
    Part.LineSegment(V(94.2, -6, 0), V(94.2, -7.6, 0)),  # 46
    Part.LineSegment(V(94.2, -7.6, 0), V(58.3, -7.6, 0)),  # 47
    Part.LineSegment(V(5.5, -6.1, 0), V(4.2, -6.1, 0)),  # 48
    Part.LineSegment(V(4.2, -6.1, 0), V(4.2, -7.7, 0)),  # 49
    Part.LineSegment(V(4.2, -7.7, 0), V(5.5, -7.7, 0)),  # 50
    Part.LineSegment(V(5.5, -7.7, 0), V(5.5, -8.5, 0)),  # 51
    Part.LineSegment(V(5.5, -8.5, 0), V(36.5, -8.5, 0)),  # 52
    Part.LineSegment(V(36.5, -8.5, 0), V(36.5, -7.7, 0)),  # 53
    Part.LineSegment(V(36.5, -7.7, 0), V(37.7, -7.7, 0)),  # 54
    Part.LineSegment(V(37.7, -7.7, 0), V(37.7, -6.1, 0)),  # 55
    Part.LineSegment(V(37.7, -6.1, 0), V(36.5, -6.1, 0)),  # 56
    Part.LineSegment(V(36.5, -6.1, 0), V(36.5, -5.4, 0)),  # 57
    Part.LineSegment(V(36.5, -5.4, 0), V(5.5, -5.4, 0)),  # 58
    Part.LineSegment(V(5.5, -5.4, 0), V(5.5, -6.1, 0)),  # 59
    Part.LineSegment(V(6.7, -7.7, 0), V(6.7, -6.1, 0)),  # 60
    Part.LineSegment(V(6.7, -6.1, 0), V(35.6, -6.1, 0)),  # 61
    Part.LineSegment(V(35.6, -6.1, 0), V(35.6, -7.7, 0)),  # 62
    Part.LineSegment(V(35.6, -7.7, 0), V(6.7, -7.7, 0)),  # 63
], False)
sketch10.addConstraint([
    Sketcher.Constraint("Coincident", 0, 2, 1, 1),
    Sketcher.Constraint("Coincident", 1, 2, 2, 1),
    Sketcher.Constraint("Coincident", 2, 2, 3, 1),
    Sketcher.Constraint("Coincident", 3, 2, 4, 1),
    Sketcher.Constraint("Coincident", 4, 2, 5, 1),
    Sketcher.Constraint("Coincident", 5, 2, 6, 1),
    Sketcher.Constraint("Coincident", 6, 2, 7, 1),
    Sketcher.Constraint("Coincident", 7, 2, 8, 1),
    Sketcher.Constraint("Coincident", 8, 2, 9, 1),
    Sketcher.Constraint("Coincident", 9, 2, 10, 1),
    Sketcher.Constraint("Coincident", 10, 2, 11, 1),
    Sketcher.Constraint("Coincident", 11, 2, 0, 1),
    Sketcher.Constraint("Coincident", 12, 2, 13, 1),
    Sketcher.Constraint("Coincident", 13, 2, 14, 1),
    Sketcher.Constraint("Coincident", 14, 2, 15, 1),
    Sketcher.Constraint("Coincident", 15, 2, 12, 1),
    Sketcher.Constraint("Coincident", 16, 2, 17, 1),
    Sketcher.Constraint("Coincident", 17, 2, 18, 1),
    Sketcher.Constraint("Coincident", 18, 2, 19, 1),
    Sketcher.Constraint("Coincident", 19, 2, 20, 1),
    Sketcher.Constraint("Coincident", 20, 2, 21, 1),
    Sketcher.Constraint("Coincident", 21, 2, 22, 1),
    Sketcher.Constraint("Coincident", 22, 2, 23, 1),
    Sketcher.Constraint("Coincident", 23, 2, 24, 1),
    Sketcher.Constraint("Coincident", 24, 2, 25, 1),
    Sketcher.Constraint("Coincident", 25, 2, 26, 1),
    Sketcher.Constraint("Coincident", 26, 2, 27, 1),
    Sketcher.Constraint("Coincident", 27, 2, 16, 1),
    Sketcher.Constraint("Coincident", 28, 2, 29, 1),
    Sketcher.Constraint("Coincident", 29, 2, 30, 1),
    Sketcher.Constraint("Coincident", 30, 2, 31, 1),
    Sketcher.Constraint("Coincident", 31, 2, 28, 1),
    Sketcher.Constraint("Coincident", 32, 2, 33, 1),
    Sketcher.Constraint("Coincident", 33, 2, 34, 1),
    Sketcher.Constraint("Coincident", 34, 2, 35, 1),
    Sketcher.Constraint("Coincident", 35, 2, 36, 1),
    Sketcher.Constraint("Coincident", 36, 2, 37, 1),
    Sketcher.Constraint("Coincident", 37, 2, 38, 1),
    Sketcher.Constraint("Coincident", 38, 2, 39, 1),
    Sketcher.Constraint("Coincident", 39, 2, 40, 1),
    Sketcher.Constraint("Coincident", 40, 2, 41, 1),
    Sketcher.Constraint("Coincident", 41, 2, 42, 1),
    Sketcher.Constraint("Coincident", 42, 2, 43, 1),
    Sketcher.Constraint("Coincident", 43, 2, 32, 1),
    Sketcher.Constraint("Coincident", 44, 2, 45, 1),
    Sketcher.Constraint("Coincident", 45, 2, 46, 1),
    Sketcher.Constraint("Coincident", 46, 2, 47, 1),
    Sketcher.Constraint("Coincident", 47, 2, 44, 1),
    Sketcher.Constraint("Coincident", 48, 2, 49, 1),
    Sketcher.Constraint("Coincident", 49, 2, 50, 1),
    Sketcher.Constraint("Coincident", 50, 2, 51, 1),
    Sketcher.Constraint("Coincident", 51, 2, 52, 1),
    Sketcher.Constraint("Coincident", 52, 2, 53, 1),
    Sketcher.Constraint("Coincident", 53, 2, 54, 1),
    Sketcher.Constraint("Coincident", 54, 2, 55, 1),
    Sketcher.Constraint("Coincident", 55, 2, 56, 1),
    Sketcher.Constraint("Coincident", 56, 2, 57, 1),
    Sketcher.Constraint("Coincident", 57, 2, 58, 1),
    Sketcher.Constraint("Coincident", 58, 2, 59, 1),
    Sketcher.Constraint("Coincident", 59, 2, 48, 1),
    Sketcher.Constraint("Coincident", 60, 2, 61, 1),
    Sketcher.Constraint("Coincident", 61, 2, 62, 1),
    Sketcher.Constraint("Coincident", 62, 2, 63, 1),
    Sketcher.Constraint("Coincident", 63, 2, 60, 1),
    Sketcher.Constraint("Vertical", 0),
    Sketcher.Constraint("Horizontal", 1),
    Sketcher.Constraint("Vertical", 2),
    Sketcher.Constraint("Horizontal", 3),
    Sketcher.Constraint("Vertical", 4),
    Sketcher.Constraint("Horizontal", 5),
    Sketcher.Constraint("Vertical", 6),
    Sketcher.Constraint("Horizontal", 7),
    Sketcher.Constraint("Vertical", 8),
    Sketcher.Constraint("Horizontal", 9),
    Sketcher.Constraint("Vertical", 10),
    Sketcher.Constraint("Horizontal", 11),
    Sketcher.Constraint("Vertical", 12),
    Sketcher.Constraint("Horizontal", 13),
    Sketcher.Constraint("Vertical", 14),
    Sketcher.Constraint("Horizontal", 15),
    Sketcher.Constraint("Horizontal", 16),
    Sketcher.Constraint("Vertical", 17),
    Sketcher.Constraint("Horizontal", 18),
    Sketcher.Constraint("Vertical", 19),
    Sketcher.Constraint("Horizontal", 20),
    Sketcher.Constraint("Vertical", 21),
    Sketcher.Constraint("Horizontal", 22),
    Sketcher.Constraint("Vertical", 23),
    Sketcher.Constraint("Horizontal", 24),
    Sketcher.Constraint("Vertical", 25),
    Sketcher.Constraint("Horizontal", 26),
    Sketcher.Constraint("Vertical", 27),
    Sketcher.Constraint("Horizontal", 28),
    Sketcher.Constraint("Vertical", 29),
    Sketcher.Constraint("Horizontal", 30),
    Sketcher.Constraint("Vertical", 31),
    Sketcher.Constraint("Vertical", 32),
    Sketcher.Constraint("Horizontal", 33),
    Sketcher.Constraint("Vertical", 34),
    Sketcher.Constraint("Horizontal", 35),
    Sketcher.Constraint("Vertical", 36),
    Sketcher.Constraint("Horizontal", 37),
    Sketcher.Constraint("Vertical", 38),
    Sketcher.Constraint("Horizontal", 39),
    Sketcher.Constraint("Vertical", 40),
    Sketcher.Constraint("Horizontal", 41),
    Sketcher.Constraint("Vertical", 42),
    Sketcher.Constraint("Horizontal", 43),
    Sketcher.Constraint("Vertical", 44),
    Sketcher.Constraint("Horizontal", 45),
    Sketcher.Constraint("Vertical", 46),
    Sketcher.Constraint("Horizontal", 47),
    Sketcher.Constraint("Horizontal", 48),
    Sketcher.Constraint("Vertical", 49),
    Sketcher.Constraint("Horizontal", 50),
    Sketcher.Constraint("Vertical", 51),
    Sketcher.Constraint("Horizontal", 52),
    Sketcher.Constraint("Vertical", 53),
    Sketcher.Constraint("Horizontal", 54),
    Sketcher.Constraint("Vertical", 55),
    Sketcher.Constraint("Horizontal", 56),
    Sketcher.Constraint("Vertical", 57),
    Sketcher.Constraint("Horizontal", 58),
    Sketcher.Constraint("Vertical", 59),
    Sketcher.Constraint("Vertical", 60),
    Sketcher.Constraint("Horizontal", 61),
    Sketcher.Constraint("Vertical", 62),
    Sketcher.Constraint("Horizontal", 63),
    Sketcher.Constraint("Horizontal", 9, 2, 12, 2),
    Sketcher.Constraint("Horizontal", 11, 2, 14, 2),
    Sketcher.Constraint("Horizontal", 20, 2, 23, 2),
    Sketcher.Constraint("Horizontal", 18, 2, 25, 2),
    Sketcher.Constraint("Horizontal", 26, 2, 28, 2),
    Sketcher.Constraint("Horizontal", 24, 2, 29, 2),
    Sketcher.Constraint("Horizontal", 41, 2, 44, 2),
    Sketcher.Constraint("Horizontal", 43, 2, 46, 2),
    Sketcher.Constraint("Horizontal", 50, 2, 53, 2),
    Sketcher.Constraint("Horizontal", 48, 2, 55, 2),
    Sketcher.Constraint("Horizontal", 59, 2, 60, 2),
    Sketcher.Constraint("Horizontal", 54, 2, 62, 2),
    Sketcher.Constraint("Vertical", 2, 2, 5, 2),
    Sketcher.Constraint("Vertical", 0, 2, 7, 2),
    Sketcher.Constraint("Vertical", 17, 2, 20, 2),
    Sketcher.Constraint("Vertical", 23, 2, 26, 2),
    Sketcher.Constraint("Vertical", 34, 2, 37, 2),
    Sketcher.Constraint("Vertical", 32, 2, 39, 2),
    Sketcher.Constraint("Vertical", 53, 2, 56, 2),
    Sketcher.Constraint("Vertical", 51, 2, 58, 2),
    Sketcher.Constraint("Equal", 5, 18),
    Sketcher.Constraint("Equal", 11, 24),
    Sketcher.Constraint("Equal", 7, 33),
    Sketcher.Constraint("Equal", 20, 35),
    Sketcher.Constraint("Equal", 26, 41),
    Sketcher.Constraint("Equal", 15, 45),
    Sketcher.Constraint("Equal", 43, 48),
    Sketcher.Constraint("Equal", 22, 52),
    Sketcher.Constraint("Equal", 37, 54),
    Sketcher.Constraint("Equal", 30, 61),
    Sketcher.Constraint("Equal", 4, 10),
    Sketcher.Constraint("Equal", 0, 17),
    Sketcher.Constraint("Equal", 14, 19),
    Sketcher.Constraint("Equal", 8, 21),
    Sketcher.Constraint("Equal", 27, 32),
    Sketcher.Constraint("Equal", 2, 34),
    Sketcher.Constraint("Equal", 31, 36),
    Sketcher.Constraint("Equal", 6, 38),
    Sketcher.Constraint("Equal", 23, 40),
    Sketcher.Constraint("Equal", 46, 49),
    Sketcher.Constraint("Equal", 32, 51),
    Sketcher.Constraint("Equal", 40, 57),
    Sketcher.Constraint("DistanceX", 9, 2, 9, 1, Q("1.335001 mm")),
    Sketcher.Constraint("DistanceX", 1, 1, 1, 2, Q("38.037399 mm")),
    Sketcher.Constraint("DistanceX", 3, 1, 3, 2, Q("1.1913 mm")),
    Sketcher.Constraint("DistanceX", -1, 1, 1, 2, Q("46.009002 mm")),
    Sketcher.Constraint("DistanceX", 28, 2, 28, 1, Q("28.811718 mm")),
    Sketcher.Constraint("DistanceY", 0, 2, 0, 1, Q("0.778438 mm")),
    Sketcher.Constraint("DistanceY", 4, 1, 4, 2, Q("1.597829 mm")),
    Sketcher.Constraint("DistanceY", 36, 2, -1, 1, Q("5.839899 mm")),
    Sketcher.Constraint("DistanceX", 13, 1, 13, 2, Q("35.897763 mm")),
    Sketcher.Constraint("DistanceX", 16, 1, 16, 2, Q("30.951354 mm")),
    Sketcher.Constraint("DistanceY", 2, 1, 2, 2, Q("0.939742 mm")),
    Sketcher.Constraint("DistanceY", 6, 1, 6, 2, Q("0.548042 mm")),
    Sketcher.Constraint("DistanceY", 0, 2, -1, 1, Q("21.318159 mm")),
    Sketcher.Constraint("DistanceX", -1, 1, 16, 2, Q("84.707471 mm")),
    Sketcher.Constraint("DistanceY", 19, 2, -1, 1, Q("19.155769 mm")),
    Sketcher.Constraint("DistanceX", -1, 1, 45, 2, Q("94.16146 mm")),
    Sketcher.Constraint("DistanceX", -1, 1, 52, 2, Q("36.475691 mm")),
    Sketcher.Constraint("DistanceY", 57, 2, -1, 1, Q("5.43856 mm")),
    Sketcher.Constraint("DistanceX", -1, 1, 12, 2, Q("9.194392 mm")),
    Sketcher.Constraint("DistanceX", -1, 1, 28, 2, Q("54.978906 mm")),
    Sketcher.Constraint("DistanceX", -1, 1, 32, 2, Q("57.040908 mm")),
    Sketcher.Constraint("DistanceX", -1, 1, 60, 2, Q("6.747126 mm")),
])
pad10 = body9.newObject("PartDesign::Pad", "Pad009")
pad10.Profile = sketch10
pad10.Length = 3.5

doc.recompute()
